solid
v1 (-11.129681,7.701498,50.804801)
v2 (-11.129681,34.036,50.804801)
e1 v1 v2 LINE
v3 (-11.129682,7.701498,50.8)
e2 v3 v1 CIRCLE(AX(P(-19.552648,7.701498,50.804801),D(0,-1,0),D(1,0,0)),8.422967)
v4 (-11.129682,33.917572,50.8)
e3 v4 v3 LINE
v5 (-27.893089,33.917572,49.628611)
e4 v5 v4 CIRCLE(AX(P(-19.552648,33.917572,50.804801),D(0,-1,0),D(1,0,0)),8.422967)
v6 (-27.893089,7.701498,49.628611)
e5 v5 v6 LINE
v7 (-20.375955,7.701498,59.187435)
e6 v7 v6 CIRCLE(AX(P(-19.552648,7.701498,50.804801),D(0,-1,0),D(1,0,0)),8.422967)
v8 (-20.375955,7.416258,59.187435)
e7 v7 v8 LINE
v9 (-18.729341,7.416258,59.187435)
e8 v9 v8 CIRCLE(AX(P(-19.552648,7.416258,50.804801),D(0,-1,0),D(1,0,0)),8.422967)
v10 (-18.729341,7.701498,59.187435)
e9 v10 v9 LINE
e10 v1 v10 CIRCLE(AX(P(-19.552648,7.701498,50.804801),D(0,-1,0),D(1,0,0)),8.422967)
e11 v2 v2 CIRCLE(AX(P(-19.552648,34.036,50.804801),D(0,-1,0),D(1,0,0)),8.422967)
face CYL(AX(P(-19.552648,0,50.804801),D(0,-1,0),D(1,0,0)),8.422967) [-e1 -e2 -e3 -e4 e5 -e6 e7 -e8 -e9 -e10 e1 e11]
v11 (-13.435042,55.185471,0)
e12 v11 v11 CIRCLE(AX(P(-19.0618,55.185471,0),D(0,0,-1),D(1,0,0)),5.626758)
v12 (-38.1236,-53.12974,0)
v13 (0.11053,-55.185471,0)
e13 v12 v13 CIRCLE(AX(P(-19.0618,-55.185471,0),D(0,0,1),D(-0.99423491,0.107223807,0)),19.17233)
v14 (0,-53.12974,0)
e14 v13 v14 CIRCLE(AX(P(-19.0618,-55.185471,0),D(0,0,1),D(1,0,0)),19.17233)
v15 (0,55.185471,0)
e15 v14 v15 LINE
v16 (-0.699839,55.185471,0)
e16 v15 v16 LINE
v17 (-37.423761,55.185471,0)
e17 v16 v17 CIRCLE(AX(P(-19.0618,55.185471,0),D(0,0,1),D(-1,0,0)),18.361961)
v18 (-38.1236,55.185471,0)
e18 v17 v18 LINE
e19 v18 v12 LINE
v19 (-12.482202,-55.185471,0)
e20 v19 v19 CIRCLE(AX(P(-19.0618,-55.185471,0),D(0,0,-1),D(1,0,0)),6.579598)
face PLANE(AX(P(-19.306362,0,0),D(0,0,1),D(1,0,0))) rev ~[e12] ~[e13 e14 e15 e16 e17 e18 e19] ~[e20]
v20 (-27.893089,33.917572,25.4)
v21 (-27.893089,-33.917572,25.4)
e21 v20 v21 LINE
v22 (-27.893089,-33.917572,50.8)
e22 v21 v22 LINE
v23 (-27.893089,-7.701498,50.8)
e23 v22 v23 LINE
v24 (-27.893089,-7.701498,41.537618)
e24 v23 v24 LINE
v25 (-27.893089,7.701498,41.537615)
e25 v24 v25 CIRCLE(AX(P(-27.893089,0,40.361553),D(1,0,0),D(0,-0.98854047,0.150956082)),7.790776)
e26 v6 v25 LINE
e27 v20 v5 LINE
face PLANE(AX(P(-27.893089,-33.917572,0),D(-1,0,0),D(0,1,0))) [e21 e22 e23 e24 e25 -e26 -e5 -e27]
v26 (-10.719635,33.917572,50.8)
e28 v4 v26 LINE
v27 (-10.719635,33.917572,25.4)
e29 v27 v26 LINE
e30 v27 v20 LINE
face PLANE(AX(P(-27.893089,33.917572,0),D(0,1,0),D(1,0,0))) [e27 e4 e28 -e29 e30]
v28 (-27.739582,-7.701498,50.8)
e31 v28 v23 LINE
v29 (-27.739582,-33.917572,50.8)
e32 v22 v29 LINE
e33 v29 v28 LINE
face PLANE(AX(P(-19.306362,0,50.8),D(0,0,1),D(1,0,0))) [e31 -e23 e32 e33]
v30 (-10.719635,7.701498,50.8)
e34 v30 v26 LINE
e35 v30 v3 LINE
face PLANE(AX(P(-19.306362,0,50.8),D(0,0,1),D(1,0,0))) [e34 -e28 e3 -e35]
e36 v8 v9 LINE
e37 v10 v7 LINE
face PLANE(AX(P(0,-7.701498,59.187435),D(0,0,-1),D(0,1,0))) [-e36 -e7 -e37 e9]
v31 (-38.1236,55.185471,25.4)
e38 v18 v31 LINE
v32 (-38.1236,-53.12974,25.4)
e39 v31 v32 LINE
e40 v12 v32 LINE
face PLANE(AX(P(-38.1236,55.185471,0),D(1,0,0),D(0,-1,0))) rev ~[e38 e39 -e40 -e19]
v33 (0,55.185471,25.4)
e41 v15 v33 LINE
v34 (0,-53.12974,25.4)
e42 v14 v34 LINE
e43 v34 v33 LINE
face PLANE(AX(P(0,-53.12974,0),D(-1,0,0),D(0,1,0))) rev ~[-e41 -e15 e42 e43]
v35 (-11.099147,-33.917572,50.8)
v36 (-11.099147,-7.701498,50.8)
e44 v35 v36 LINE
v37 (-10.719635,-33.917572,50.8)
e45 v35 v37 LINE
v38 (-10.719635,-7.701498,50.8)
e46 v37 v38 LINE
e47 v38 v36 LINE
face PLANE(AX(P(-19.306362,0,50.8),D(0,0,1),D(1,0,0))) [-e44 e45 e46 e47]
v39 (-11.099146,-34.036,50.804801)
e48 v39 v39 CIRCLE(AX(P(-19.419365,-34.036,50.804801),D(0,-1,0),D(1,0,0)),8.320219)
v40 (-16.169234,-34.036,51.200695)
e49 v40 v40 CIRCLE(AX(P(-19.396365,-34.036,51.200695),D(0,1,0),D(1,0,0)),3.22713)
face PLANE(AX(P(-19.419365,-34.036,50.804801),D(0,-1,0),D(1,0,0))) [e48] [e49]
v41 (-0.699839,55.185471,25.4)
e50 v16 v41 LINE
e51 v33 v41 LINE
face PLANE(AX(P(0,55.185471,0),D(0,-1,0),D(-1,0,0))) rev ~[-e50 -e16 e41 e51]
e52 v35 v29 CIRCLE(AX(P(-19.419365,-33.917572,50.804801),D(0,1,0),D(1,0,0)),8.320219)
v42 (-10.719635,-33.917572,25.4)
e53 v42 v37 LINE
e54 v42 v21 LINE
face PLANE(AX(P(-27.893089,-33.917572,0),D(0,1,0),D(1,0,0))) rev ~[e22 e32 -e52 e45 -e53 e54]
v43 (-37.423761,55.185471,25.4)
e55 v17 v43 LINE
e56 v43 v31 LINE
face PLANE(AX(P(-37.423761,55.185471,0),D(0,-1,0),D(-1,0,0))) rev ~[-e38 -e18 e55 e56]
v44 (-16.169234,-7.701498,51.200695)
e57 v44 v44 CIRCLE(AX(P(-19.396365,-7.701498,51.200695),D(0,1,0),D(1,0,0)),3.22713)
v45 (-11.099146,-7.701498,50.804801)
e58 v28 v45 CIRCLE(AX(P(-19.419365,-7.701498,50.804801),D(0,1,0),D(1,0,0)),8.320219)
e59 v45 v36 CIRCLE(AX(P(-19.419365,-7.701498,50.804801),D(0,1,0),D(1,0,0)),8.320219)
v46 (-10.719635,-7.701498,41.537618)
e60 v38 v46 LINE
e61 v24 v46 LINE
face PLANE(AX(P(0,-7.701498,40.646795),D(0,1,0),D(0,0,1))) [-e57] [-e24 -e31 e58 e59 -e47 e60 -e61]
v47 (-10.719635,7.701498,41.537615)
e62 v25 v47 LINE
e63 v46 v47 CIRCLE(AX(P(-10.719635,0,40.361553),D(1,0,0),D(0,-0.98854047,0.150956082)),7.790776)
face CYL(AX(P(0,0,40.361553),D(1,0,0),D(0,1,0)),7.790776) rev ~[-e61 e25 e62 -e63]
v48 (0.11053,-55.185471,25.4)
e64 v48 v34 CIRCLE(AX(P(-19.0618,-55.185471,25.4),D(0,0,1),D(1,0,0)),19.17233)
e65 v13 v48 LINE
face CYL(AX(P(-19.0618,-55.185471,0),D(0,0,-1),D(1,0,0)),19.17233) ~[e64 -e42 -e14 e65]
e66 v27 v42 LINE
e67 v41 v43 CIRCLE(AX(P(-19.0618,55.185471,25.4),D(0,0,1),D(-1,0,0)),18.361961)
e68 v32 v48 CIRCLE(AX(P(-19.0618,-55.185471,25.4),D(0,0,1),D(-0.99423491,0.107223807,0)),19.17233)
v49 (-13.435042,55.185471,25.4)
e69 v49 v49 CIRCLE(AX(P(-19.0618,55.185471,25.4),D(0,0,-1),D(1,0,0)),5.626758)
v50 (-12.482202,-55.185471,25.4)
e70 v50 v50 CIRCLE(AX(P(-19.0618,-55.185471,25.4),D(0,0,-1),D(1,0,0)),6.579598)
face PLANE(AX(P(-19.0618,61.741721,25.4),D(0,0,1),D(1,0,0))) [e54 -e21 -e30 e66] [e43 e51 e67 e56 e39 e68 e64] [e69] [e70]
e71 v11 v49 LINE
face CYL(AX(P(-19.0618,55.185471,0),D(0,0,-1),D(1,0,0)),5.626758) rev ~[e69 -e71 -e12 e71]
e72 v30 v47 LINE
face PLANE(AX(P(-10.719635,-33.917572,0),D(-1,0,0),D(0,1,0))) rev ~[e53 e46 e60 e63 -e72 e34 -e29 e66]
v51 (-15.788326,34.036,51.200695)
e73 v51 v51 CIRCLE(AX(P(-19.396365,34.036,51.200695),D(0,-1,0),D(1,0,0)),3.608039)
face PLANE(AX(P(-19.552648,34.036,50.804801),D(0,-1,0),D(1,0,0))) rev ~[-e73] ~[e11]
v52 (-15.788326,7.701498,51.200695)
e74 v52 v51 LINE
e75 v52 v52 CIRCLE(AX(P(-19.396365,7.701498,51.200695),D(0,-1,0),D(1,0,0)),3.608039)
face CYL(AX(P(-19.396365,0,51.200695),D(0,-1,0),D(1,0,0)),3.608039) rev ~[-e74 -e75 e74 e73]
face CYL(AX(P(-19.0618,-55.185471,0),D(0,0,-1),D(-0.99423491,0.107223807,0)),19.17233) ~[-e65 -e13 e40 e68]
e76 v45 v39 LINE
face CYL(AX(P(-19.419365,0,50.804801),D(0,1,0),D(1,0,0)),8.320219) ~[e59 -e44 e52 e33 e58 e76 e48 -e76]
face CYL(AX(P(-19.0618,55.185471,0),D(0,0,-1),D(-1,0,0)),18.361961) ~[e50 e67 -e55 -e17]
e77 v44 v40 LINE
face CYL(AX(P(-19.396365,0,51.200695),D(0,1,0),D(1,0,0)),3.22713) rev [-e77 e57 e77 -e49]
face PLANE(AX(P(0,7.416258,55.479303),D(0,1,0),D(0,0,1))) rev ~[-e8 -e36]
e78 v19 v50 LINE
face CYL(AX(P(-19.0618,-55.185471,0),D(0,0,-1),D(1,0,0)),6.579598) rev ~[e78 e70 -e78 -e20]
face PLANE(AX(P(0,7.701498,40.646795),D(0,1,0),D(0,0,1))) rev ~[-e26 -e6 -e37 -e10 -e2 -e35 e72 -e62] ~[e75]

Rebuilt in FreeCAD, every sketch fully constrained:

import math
import FreeCAD as App
import Part
import Sketcher

V = App.Vector

doc = App.newDocument("Part")
params = doc.addObject("Spreadsheet::Sheet", "Params")
for row, (alias, value) in enumerate([
    ("pad1_length", "1 in"),
    ("pad2_length", "2 in"),
    ("pad3_length", "1.34 in"),
    ("pad4_length", "1.34 in"),
    ("pocket6_length", "1.42 in"),
], start=1):
    params.set(f"A{row}", alias)
    params.set(f"B{row}", "=" + value)
    params.setAlias(f"B{row}", alias)

body = doc.addObject("PartDesign::Body", "Body")

# Sketch on XY plane
sketch1 = body.newObject("Sketcher::SketchObject", "Sketch")
sketch1.AttachmentSupport = (doc.getObject("XY_Plane"), [""])
sketch1.MapMode = "FlatFace"
sketch1.addGeometry(Part.ArcOfCircle(Part.Circle(V(-19.1, 55.2, 0), V(0, 0, 1), 18.4), math.radians(0), math.radians(180)), False)
sketch1.addGeometry(Part.LineSegment(V(-37.4, 55.2, 0), V(-38.1, 55.2, 0)), False)
sketch1.addGeometry(Part.LineSegment(V(-38.1, 55.2, 0), V(-38.1, -53.1, 0)), False)
sketch1.addGeometry(Part.ArcOfCircle(Part.Circle(V(-19.1, -55.2, 0), V(0, 0, 1), 19.2), math.radians(174), math.radians(360)), False)
sketch1.addGeometry(Part.ArcOfCircle(Part.Circle(V(-19.1, -55.2, 0), V(0, 0, 1), 19.2), math.radians(0), math.radians(6.16)), False)
sketch1.addGeometry(Part.LineSegment(V(0, -53.1, 0), V(0, 55.2, 0)), False)
sketch1.addGeometry(Part.LineSegment(V(0, 55.2, 0), V(-0.7, 55.2, 0)), False)
sketch1.addGeometry(Part.Circle(V(-19.1, -55.2, 0), V(0, 0, 1), 6.6), False)
sketch1.addGeometry(Part.Circle(V(-19.1, 55.2, 0), V(0, 0, 1), 5.6), False)
sketch1.addConstraint(Sketcher.Constraint("Coincident", 0, 2, 1, 1))
sketch1.addConstraint(Sketcher.Constraint("Coincident", 1, 2, 2, 1))
sketch1.addConstraint(Sketcher.Constraint("Coincident", 2, 2, 3, 1))
sketch1.addConstraint(Sketcher.Constraint("Tangent", 3, 2, 4, 1))
sketch1.addConstraint(Sketcher.Constraint("Coincident", 4, 2, 5, 1))
sketch1.addConstraint(Sketcher.Constraint("Coincident", 5, 2, 6, 1))
sketch1.addConstraint(Sketcher.Constraint("Coincident", 6, 2, 0, 1))
sketch1.addConstraint(Sketcher.Constraint("Horizontal", 1))
sketch1.addConstraint(Sketcher.Constraint("Vertical", 2))
sketch1.addConstraint(Sketcher.Constraint("Vertical", 5))
sketch1.addConstraint(Sketcher.Constraint("Horizontal", 6))
sketch1.addConstraint(Sketcher.Constraint("Coincident", 7, 3, 3, 3))
sketch1.addConstraint(Sketcher.Constraint("Coincident", 8, 3, 0, 3))
sketch1.addConstraint(Sketcher.Constraint("Equal", 3, 4))
sketch1.addConstraint(Sketcher.Constraint("Symmetric", 0, 3, 3, 3, -1))
sketch1.addConstraint(Sketcher.Constraint("PointOnObject", 4, 2, -2))
sketch1.addConstraint(Sketcher.Constraint("Horizontal", 8, 3, 0, 2))
sketch1.addConstraint(Sketcher.Constraint("Horizontal", 7, 3, 3, 2))
sketch1.addConstraint(Sketcher.Constraint("Horizontal", 2, 2, 4, 2))
sketch1.addConstraint(Sketcher.Constraint("Horizontal", 1, 2, 5, 2))
sketch1.addConstraint(Sketcher.Constraint("Radius", 0, 18.361961))
sketch1.addConstraint(Sketcher.Constraint("Radius", 3, 19.17233))
sketch1.addConstraint(Sketcher.Constraint("Diameter", 7, 13.159196))
sketch1.addConstraint(Sketcher.Constraint("Diameter", 8, 11.253517))
sketch1.addConstraint(Sketcher.Constraint("DistanceX", 1, 2, 1, 1, 0.699839))
sketch1.addConstraint(Sketcher.Constraint("DistanceY", 2, 2, 2, 1, 108.315211))
pad1 = body.newObject("PartDesign::Pad", "Pad")
pad1.Profile = sketch1
pad1.setExpression("Length", "Params.pad1_length")

# Sketch on XY plane
sketch2 = body.newObject("Sketcher::SketchObject", "Sketch001")
sketch2.AttachmentSupport = (doc.getObject("XY_Plane"), [""])
sketch2.MapMode = "FlatFace"
sketch2.addGeometry(Part.LineSegment(V(-28, 34, 0), V(-28, -34, 0)), False)
sketch2.addGeometry(Part.LineSegment(V(-28, -34, 0), V(-11, -34, 0)), False)
sketch2.addGeometry(Part.LineSegment(V(-11, -34, 0), V(-11, 34, 0)), False)
sketch2.addGeometry(Part.LineSegment(V(-11, 34, 0), V(-28, 34, 0)), False)
sketch2.addConstraint(Sketcher.Constraint("Coincident", 0, 2, 1, 1))
sketch2.addConstraint(Sketcher.Constraint("Coincident", 1, 2, 2, 1))
sketch2.addConstraint(Sketcher.Constraint("Coincident", 2, 2, 3, 1))
sketch2.addConstraint(Sketcher.Constraint("Coincident", 3, 2, 0, 1))
sketch2.addConstraint(Sketcher.Constraint("Vertical", 0))
sketch2.addConstraint(Sketcher.Constraint("Horizontal", 1))
sketch2.addConstraint(Sketcher.Constraint("Vertical", 2))
sketch2.addConstraint(Sketcher.Constraint("Horizontal", 3))
sketch2.addConstraint(Sketcher.Constraint("DistanceX", 1, 1, 1, 2, 17.173454))
sketch2.addConstraint(Sketcher.Constraint("DistanceY", 0, 2, 0, 1, 67.835145))
sketch2.addConstraint(Sketcher.Constraint("DistanceX", 0, 2, -1, 1, 27.893089))
sketch2.addConstraint(Sketcher.Constraint("DistanceY", 0, 2, -1, 1, 33.917572))
pad2 = body.newObject("PartDesign::Pad", "Pad001")
pad2.Profile = sketch2
pad2.setExpression("Length", "Params.pad2_length")

# Sketch on XZ plane
sketch3 = body.newObject("Sketcher::SketchObject", "Sketch002")
sketch3.AttachmentSupport = (doc.getObject("XZ_Plane"), [""])
sketch3.MapMode = "FlatFace"
sketch3.addGeometry(Part.Circle(V(-19, 51, 0), V(0, 0, 1), 8), False)
sketch3.addConstraint(Sketcher.Constraint("Diameter", 0, 16.640438))
sketch3.addConstraint(Sketcher.Constraint("DistanceY", -1, 1, 0, 3, 50.804801))
sketch3.addConstraint(Sketcher.Constraint("DistanceX", 0, 3, -1, 1, 19.419365))
pad3 = body.newObject("PartDesign::Pad", "Pad002")
pad3.Profile = sketch3
pad3.setExpression("Length", "Params.pad3_length")

# Sketch on XZ plane
sketch4 = body.newObject("Sketcher::SketchObject", "Sketch003")
sketch4.AttachmentSupport = (doc.getObject("XZ_Plane"), [""])
sketch4.MapMode = "FlatFace"
sketch4.addGeometry(Part.Circle(V(-20, 51, 0), V(0, 0, 1), 8), False)
sketch4.addConstraint(Sketcher.Constraint("Diameter", 0, 16.845934))
sketch4.addConstraint(Sketcher.Constraint("DistanceY", -1, 1, 0, 3, 50.804801))
sketch4.addConstraint(Sketcher.Constraint("DistanceX", 0, 3, -1, 1, 19.552648))
pad4 = body.newObject("PartDesign::Pad", "Pad003")
pad4.Profile = sketch4
pad4.setExpression("Length", "Params.pad4_length")
pad4.Reversed = True

# Sketch on YZ plane
sketch5 = body.newObject("Sketcher::SketchObject", "Sketch004")
sketch5.AttachmentSupport = (doc.getObject("YZ_Plane"), [""])
sketch5.MapMode = "FlatFace"
sketch5.addGeometry(Part.Circle(V(0, 40, 0), V(0, 0, 1), 8), False)
sketch5.addConstraint(Sketcher.Constraint("PointOnObject", 0, 3, -2))
sketch5.addConstraint(Sketcher.Constraint("Diameter", 0, 15.581552))
sketch5.addConstraint(Sketcher.Constraint("DistanceY", -1, 1, 0, 3, 40.361553))
pocket1 = body.newObject("PartDesign::Pocket", "Pocket")
pocket1.Profile = sketch5
pocket1.Type = "ThroughAll"

# Sketch on YZ plane
sketch6 = body.newObject("Sketcher::SketchObject", "Sketch005")
sketch6.AttachmentSupport = (doc.getObject("YZ_Plane"), [""])
sketch6.MapMode = "FlatFace"
sketch6.addGeometry(Part.LineSegment(V(-8, 59, 0), V(-8, 41, 0)), False)
sketch6.addGeometry(Part.LineSegment(V(-8, 41, 0), V(8, 41, 0)), False)
sketch6.addGeometry(Part.LineSegment(V(8, 41, 0), V(8, 59, 0)), False)
sketch6.addGeometry(Part.LineSegment(V(8, 59, 0), V(-8, 59, 0)), False)
sketch6.addConstraint(Sketcher.Constraint("Coincident", 0, 2, 1, 1))
sketch6.addConstraint(Sketcher.Constraint("Coincident", 1, 2, 2, 1))
sketch6.addConstraint(Sketcher.Constraint("Coincident", 2, 2, 3, 1))
sketch6.addConstraint(Sketcher.Constraint("Coincident", 3, 2, 0, 1))
sketch6.addConstraint(Sketcher.Constraint("Vertical", 0))
sketch6.addConstraint(Sketcher.Constraint("Horizontal", 1))
sketch6.addConstraint(Sketcher.Constraint("Vertical", 2))
sketch6.addConstraint(Sketcher.Constraint("Horizontal", 3))
sketch6.addConstraint(Sketcher.Constraint("DistanceY", 0, 2, 0, 1, 18.540639))
sketch6.addConstraint(Sketcher.Constraint("DistanceX", 1, 1, 1, 2, 15.402996))
sketch6.addConstraint(Sketcher.Constraint("DistanceX", 0, 2, -1, 1, 7.701498))
sketch6.addConstraint(Sketcher.Constraint("DistanceY", -1, 1, 0, 2, 40.646795))
pocket2 = body.newObject("PartDesign::Pocket", "Pocket001")
pocket2.Profile = sketch6
pocket2.Type = "ThroughAll"

# Sketch on YZ plane
sketch7 = body.newObject("Sketcher::SketchObject", "Sketch006")
sketch7.AttachmentSupport = (doc.getObject("YZ_Plane"), [""])
sketch7.MapMode = "FlatFace"
sketch7.addGeometry(Part.LineSegment(V(0, 65, 0), V(0, 55, 0)), False)
sketch7.addGeometry(Part.LineSegment(V(0, 55, 0), V(7, 55, 0)), False)
sketch7.addGeometry(Part.LineSegment(V(7, 55, 0), V(7, 65, 0)), False)
sketch7.addGeometry(Part.LineSegment(V(7, 65, 0), V(0, 65, 0)), False)
sketch7.addConstraint(Sketcher.Constraint("Coincident", 0, 2, 1, 1))
sketch7.addConstraint(Sketcher.Constraint("Coincident", 1, 2, 2, 1))
sketch7.addConstraint(Sketcher.Constraint("Coincident", 2, 2, 3, 1))
sketch7.addConstraint(Sketcher.Constraint("Coincident", 3, 2, 0, 1))
sketch7.addConstraint(Sketcher.Constraint("Vertical", 0))
sketch7.addConstraint(Sketcher.Constraint("Horizontal", 1))
sketch7.addConstraint(Sketcher.Constraint("Vertical", 2))
sketch7.addConstraint(Sketcher.Constraint("Horizontal", 3))
sketch7.addConstraint(Sketcher.Constraint("PointOnObject", 0, 2, -2))
sketch7.addConstraint(Sketcher.Constraint("DistanceX", 1, 1, 1, 2, 7.416258))
sketch7.addConstraint(Sketcher.Constraint("DistanceY", 0, 2, 0, 1, 9.127706))
sketch7.addConstraint(Sketcher.Constraint("DistanceY", -1, 1, 2, 2, 64.607009))
pocket3 = body.newObject("PartDesign::Pocket", "Pocket002")
pocket3.Profile = sketch7
pocket3.Type = "ThroughAll"

# Sketch on XZ plane
sketch8 = body.newObject("Sketcher::SketchObject", "Sketch007")
sketch8.AttachmentSupport = (doc.getObject("XZ_Plane"), [""])
sketch8.MapMode = "FlatFace"
sketch8.addGeometry(Part.Circle(V(-19.4, 51.2, 0), V(0, 0, 1), 3.6), False)
sketch8.addConstraint(Sketcher.Constraint("Diameter", 0, 7.216078))
sketch8.addConstraint(Sketcher.Constraint("DistanceX", 0, 3, -1, 1, 19.396365))
sketch8.addConstraint(Sketcher.Constraint("DistanceY", -1, 1, 0, 3, 51.200695))
pocket4 = body.newObject("PartDesign::Pocket", "Pocket003")
pocket4.Profile = sketch8
pocket4.Type = "ThroughAll"

# Sketch on XZ plane
sketch9 = body.newObject("Sketcher::SketchObject", "Sketch008")
sketch9.AttachmentSupport = (doc.getObject("XZ_Plane"), [""])
sketch9.MapMode = "FlatFace"
sketch9.addGeometry(Part.Circle(V(-19.4, 51.2, 0), V(0, 0, 1), 3.6), False)
sketch9.addConstraint(Sketcher.Constraint("Diameter", 0, 7.216078))
sketch9.addConstraint(Sketcher.Constraint("DistanceX", 0, 3, -1, 1, 19.396365))
sketch9.addConstraint(Sketcher.Constraint("DistanceY", -1, 1, 0, 3, 51.200695))
pocket5 = body.newObject("PartDesign::Pocket", "Pocket004")
pocket5.Profile = sketch9
pocket5.Type = "ThroughAll"

# Sketch on XZ plane
sketch10 = body.newObject("Sketcher::SketchObject", "Sketch009")
sketch10.AttachmentSupport = (doc.getObject("XZ_Plane"), [""])
sketch10.MapMode = "FlatFace"
sketch10.addGeometry(Part.Circle(V(-19.4, 51.2, 0), V(0, 0, 1), 3.2), False)
sketch10.addConstraint(Sketcher.Constraint("Diameter", 0, 6.45426))
sketch10.addConstraint(Sketcher.Constraint("DistanceX", 0, 3, -1, 1, 19.396365))
sketch10.addConstraint(Sketcher.Constraint("DistanceY", -1, 1, 0, 3, 51.200695))
pocket6 = body.newObject("PartDesign::Pocket", "Pocket005")
pocket6.Profile = sketch10
pocket6.setExpression("Length", "Params.pocket6_length")
pocket6.Reversed = True

doc.recompute()
